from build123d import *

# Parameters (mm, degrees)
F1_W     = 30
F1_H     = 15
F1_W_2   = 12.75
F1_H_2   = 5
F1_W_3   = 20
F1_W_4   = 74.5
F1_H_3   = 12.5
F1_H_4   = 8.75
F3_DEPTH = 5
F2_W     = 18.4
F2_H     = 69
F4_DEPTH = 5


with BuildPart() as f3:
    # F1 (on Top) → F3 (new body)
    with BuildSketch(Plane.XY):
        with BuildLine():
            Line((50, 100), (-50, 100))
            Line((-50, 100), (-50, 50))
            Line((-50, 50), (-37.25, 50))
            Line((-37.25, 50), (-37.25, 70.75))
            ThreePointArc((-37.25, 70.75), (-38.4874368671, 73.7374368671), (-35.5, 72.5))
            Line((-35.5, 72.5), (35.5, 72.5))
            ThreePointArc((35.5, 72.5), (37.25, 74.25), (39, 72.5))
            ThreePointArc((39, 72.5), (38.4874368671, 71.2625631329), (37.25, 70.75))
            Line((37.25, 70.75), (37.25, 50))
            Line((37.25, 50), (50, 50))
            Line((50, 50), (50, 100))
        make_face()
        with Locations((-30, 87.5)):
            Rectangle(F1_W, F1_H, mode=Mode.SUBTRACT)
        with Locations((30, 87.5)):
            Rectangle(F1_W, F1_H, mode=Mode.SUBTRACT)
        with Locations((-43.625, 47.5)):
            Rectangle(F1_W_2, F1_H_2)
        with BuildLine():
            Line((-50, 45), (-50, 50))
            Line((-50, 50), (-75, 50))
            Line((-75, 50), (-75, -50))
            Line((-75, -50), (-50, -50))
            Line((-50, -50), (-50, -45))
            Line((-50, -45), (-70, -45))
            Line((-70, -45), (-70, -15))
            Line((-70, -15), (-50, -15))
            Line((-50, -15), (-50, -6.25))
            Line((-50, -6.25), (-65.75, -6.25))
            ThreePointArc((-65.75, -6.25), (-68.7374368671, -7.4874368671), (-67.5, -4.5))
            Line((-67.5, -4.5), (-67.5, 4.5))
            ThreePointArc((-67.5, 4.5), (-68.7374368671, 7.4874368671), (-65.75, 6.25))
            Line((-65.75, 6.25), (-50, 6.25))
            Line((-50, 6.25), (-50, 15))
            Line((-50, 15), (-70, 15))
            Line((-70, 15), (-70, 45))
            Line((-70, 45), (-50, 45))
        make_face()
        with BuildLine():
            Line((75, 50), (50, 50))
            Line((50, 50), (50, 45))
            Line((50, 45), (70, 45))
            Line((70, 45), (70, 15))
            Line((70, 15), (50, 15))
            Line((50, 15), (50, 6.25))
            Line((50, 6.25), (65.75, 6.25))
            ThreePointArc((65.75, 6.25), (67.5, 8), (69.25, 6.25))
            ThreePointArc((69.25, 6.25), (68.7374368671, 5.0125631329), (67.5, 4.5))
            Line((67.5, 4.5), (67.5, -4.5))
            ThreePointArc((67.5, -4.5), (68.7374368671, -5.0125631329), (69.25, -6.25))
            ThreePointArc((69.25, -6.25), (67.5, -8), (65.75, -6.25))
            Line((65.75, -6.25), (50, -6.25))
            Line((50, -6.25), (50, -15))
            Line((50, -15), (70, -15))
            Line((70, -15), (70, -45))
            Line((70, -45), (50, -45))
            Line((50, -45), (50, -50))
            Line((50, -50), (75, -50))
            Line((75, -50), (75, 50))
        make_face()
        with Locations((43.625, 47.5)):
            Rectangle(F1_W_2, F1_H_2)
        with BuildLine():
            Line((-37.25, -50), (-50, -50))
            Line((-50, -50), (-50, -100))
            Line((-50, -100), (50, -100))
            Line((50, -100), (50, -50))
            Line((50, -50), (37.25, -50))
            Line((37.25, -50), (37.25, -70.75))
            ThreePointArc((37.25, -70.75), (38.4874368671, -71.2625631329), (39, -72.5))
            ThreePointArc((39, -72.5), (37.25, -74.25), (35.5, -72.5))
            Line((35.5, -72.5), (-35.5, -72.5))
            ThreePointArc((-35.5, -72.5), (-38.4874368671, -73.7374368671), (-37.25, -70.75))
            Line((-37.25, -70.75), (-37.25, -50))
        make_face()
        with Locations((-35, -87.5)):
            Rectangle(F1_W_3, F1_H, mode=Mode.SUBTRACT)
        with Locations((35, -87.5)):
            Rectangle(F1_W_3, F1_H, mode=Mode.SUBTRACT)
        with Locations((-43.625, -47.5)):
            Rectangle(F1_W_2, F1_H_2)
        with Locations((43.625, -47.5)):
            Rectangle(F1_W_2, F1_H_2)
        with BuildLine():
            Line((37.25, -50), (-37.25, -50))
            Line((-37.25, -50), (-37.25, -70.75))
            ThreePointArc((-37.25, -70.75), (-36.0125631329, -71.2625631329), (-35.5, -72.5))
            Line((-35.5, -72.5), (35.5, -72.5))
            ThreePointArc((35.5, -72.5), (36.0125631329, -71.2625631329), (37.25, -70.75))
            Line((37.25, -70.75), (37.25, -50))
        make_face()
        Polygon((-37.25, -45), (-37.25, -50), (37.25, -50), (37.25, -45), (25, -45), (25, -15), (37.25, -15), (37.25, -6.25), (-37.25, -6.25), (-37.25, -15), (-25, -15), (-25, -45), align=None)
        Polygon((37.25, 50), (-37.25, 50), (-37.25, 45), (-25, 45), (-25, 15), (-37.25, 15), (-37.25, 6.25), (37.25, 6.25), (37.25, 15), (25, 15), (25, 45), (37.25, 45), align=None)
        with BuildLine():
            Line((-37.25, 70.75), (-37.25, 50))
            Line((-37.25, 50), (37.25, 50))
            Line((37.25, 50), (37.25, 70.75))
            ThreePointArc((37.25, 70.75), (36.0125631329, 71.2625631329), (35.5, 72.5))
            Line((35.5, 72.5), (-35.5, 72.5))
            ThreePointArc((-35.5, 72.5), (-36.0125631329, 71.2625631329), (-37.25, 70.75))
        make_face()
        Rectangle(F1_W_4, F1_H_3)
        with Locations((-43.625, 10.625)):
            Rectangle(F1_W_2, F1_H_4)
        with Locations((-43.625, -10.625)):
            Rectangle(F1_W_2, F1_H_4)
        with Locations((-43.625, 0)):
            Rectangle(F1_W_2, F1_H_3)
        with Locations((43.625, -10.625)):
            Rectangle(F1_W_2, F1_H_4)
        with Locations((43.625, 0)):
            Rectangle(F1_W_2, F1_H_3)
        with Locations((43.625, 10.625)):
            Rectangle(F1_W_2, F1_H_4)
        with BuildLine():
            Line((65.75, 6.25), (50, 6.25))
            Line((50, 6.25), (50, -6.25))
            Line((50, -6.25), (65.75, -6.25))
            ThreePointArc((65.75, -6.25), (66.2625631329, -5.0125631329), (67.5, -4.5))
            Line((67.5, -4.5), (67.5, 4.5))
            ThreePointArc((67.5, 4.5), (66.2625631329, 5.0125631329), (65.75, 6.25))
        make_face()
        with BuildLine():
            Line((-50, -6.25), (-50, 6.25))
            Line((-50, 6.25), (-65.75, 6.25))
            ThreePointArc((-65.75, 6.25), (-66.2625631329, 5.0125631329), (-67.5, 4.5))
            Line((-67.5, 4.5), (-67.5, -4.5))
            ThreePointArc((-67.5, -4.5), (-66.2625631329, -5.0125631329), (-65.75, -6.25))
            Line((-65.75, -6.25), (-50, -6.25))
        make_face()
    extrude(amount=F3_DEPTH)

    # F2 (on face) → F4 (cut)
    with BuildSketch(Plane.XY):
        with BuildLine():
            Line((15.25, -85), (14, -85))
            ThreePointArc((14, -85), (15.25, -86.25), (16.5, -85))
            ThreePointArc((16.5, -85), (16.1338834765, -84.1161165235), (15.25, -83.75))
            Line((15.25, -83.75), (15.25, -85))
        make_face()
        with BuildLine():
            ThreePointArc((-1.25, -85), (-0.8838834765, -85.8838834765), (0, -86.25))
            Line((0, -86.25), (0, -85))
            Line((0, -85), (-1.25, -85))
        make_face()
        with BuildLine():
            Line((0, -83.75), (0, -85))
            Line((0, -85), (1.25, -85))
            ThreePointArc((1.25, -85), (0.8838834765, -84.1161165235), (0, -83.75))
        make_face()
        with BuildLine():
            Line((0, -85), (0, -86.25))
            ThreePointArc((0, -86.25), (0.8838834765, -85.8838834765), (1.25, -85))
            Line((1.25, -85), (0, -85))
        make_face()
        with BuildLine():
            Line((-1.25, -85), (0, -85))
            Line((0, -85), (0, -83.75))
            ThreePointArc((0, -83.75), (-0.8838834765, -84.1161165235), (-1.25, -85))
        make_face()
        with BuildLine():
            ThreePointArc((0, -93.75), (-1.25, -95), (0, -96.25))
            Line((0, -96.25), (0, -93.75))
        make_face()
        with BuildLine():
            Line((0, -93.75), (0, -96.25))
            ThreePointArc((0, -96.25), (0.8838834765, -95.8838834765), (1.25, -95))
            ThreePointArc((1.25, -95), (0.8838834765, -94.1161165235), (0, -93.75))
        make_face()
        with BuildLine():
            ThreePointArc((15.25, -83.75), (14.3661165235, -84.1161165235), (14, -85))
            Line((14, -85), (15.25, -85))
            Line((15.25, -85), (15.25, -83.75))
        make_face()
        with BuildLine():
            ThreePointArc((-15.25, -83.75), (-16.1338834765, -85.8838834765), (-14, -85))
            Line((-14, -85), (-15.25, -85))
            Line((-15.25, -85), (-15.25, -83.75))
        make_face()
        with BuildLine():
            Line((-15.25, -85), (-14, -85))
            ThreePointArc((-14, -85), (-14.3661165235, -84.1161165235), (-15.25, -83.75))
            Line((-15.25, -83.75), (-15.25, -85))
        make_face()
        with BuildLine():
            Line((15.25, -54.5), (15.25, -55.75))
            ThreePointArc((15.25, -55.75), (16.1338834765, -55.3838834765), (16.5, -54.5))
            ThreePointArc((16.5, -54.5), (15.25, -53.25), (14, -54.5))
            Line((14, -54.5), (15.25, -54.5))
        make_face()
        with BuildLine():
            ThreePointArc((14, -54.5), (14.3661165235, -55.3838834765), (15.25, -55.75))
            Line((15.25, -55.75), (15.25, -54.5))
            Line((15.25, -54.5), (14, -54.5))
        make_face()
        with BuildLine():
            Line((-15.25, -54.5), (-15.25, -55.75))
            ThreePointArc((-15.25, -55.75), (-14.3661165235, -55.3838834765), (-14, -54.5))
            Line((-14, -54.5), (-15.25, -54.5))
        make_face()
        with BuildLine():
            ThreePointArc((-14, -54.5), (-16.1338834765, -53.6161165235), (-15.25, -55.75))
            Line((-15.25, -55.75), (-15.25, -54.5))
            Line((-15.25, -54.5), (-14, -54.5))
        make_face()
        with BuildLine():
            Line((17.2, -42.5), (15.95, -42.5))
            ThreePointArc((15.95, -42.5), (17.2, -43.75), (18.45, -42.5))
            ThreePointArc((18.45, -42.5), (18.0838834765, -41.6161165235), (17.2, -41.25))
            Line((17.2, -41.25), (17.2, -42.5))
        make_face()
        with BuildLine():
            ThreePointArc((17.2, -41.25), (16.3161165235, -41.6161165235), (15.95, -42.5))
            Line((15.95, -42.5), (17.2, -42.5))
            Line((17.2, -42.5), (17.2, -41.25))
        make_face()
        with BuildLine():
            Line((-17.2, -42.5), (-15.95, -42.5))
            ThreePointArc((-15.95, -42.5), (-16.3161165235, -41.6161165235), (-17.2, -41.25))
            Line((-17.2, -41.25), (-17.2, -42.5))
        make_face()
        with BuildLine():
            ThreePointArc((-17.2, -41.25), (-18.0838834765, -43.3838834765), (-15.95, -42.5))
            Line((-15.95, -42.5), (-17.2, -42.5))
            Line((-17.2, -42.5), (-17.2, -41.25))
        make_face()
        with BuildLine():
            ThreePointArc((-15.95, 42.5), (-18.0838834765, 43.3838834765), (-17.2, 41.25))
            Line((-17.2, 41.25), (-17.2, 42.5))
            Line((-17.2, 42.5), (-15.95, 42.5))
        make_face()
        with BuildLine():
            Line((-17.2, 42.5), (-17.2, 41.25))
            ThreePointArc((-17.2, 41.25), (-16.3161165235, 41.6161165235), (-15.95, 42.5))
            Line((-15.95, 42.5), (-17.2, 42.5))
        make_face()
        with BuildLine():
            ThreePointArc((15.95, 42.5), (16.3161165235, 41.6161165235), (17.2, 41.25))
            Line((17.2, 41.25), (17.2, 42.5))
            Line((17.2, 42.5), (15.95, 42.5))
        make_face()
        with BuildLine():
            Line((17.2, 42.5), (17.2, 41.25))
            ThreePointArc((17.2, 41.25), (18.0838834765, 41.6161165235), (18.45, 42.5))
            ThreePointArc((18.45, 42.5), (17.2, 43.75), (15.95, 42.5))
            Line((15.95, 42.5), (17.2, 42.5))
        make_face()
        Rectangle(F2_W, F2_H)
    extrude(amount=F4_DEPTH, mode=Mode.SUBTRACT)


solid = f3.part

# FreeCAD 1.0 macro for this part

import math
import FreeCAD as App
import Part
import Sketcher


def add_polygon(sketch, points):
    """Adds a closed chain of lines whose ends are joined by coincident constraints."""
    first, n = sketch.GeometryCount, len(points)
    for a, b in zip(points, points[1:] + points[:1]):
        sketch.addGeometry(Part.LineSegment(App.Vector(*a, 0), App.Vector(*b, 0)), False)
    for i in range(n):
        sketch.addConstraint(Sketcher.Constraint("Coincident", first + i, 2, first + (i + 1) % n, 1))

doc = App.newDocument("Part")
params = doc.addObject("Spreadsheet::Sheet", "Params")
for row, (alias, value) in enumerate([
    ("sketch1_width", "25 mm"),
    ("sketch1_width2", "100 mm"),
    ("sketch1_width3", "20 mm"),
    ("sketch1_width4", "45 mm"),
    ("sketch1_width5", "30 mm"),
    ("pad1_length", "5 mm"),
    ("sketch2_height", "69 mm"),
    ("sketch2_radius", "1.25 mm"),
    ("sketch2_width", "18.4 mm"),
    ("pocket1_length", "5 mm"),
], start=1):
    params.set(f"A{row}", alias)
    params.set(f"B{row}", "=" + value)
    params.setAlias(f"B{row}", alias)

body = doc.addObject("PartDesign::Body", "Body")

sketch1 = doc.addObject("Sketcher::SketchObject", "Sketch")
body.addObject(sketch1)
sketch1.AttachmentSupport = (doc.XY_Plane, [""])
sketch1.MapMode = "FlatFace"
add_polygon(sketch1, [(50, -100), (50, -50), (75, -50), (75, 50), (50, 50), (50, 100), (-50, 100), (-50, 50), (-75, 50), (-75, -50), (-50, -50), (-50, -100)])
sketch1.addGeometry(Part.ArcOfCircle(Part.Circle(App.Vector(-37.2, -72.5, 0), App.Vector(0, 0, 1), 1.8), math.radians(90), math.radians(360)), False)
sketch1.addGeometry(Part.ArcOfCircle(Part.Circle(App.Vector(-37.2, -72.5, 0), App.Vector(0, 0, 1), 1.8), math.radians(0), math.radians(90)), False)
add_polygon(sketch1, [(-25, -95), (-45, -95), (-45, -80), (-25, -80)])
add_polygon(sketch1, [(-25, -15), (-25, -45), (-70, -45), (-70, -15)])
add_polygon(sketch1, [(25, -95), (25, -80), (45, -80), (45, -95)])
sketch1.addGeometry(Part.ArcOfCircle(Part.Circle(App.Vector(37.2, -72.5, 0), App.Vector(0, 0, 1), 1.8), math.radians(0), math.radians(90)), False)
sketch1.addGeometry(Part.ArcOfCircle(Part.Circle(App.Vector(37.2, -72.5, 0), App.Vector(0, 0, 1), 1.8), math.radians(180), math.radians(360)), False)
sketch1.addGeometry(Part.ArcOfCircle(Part.Circle(App.Vector(37.2, -72.5, 0), App.Vector(0, 0, 1), 1.8), math.radians(90), math.radians(180)), False)
add_polygon(sketch1, [(70, -45), (25, -45), (25, -15), (70, -15)])
sketch1.addGeometry(Part.ArcOfCircle(Part.Circle(App.Vector(-67.5, -6.2, 0), App.Vector(0, 0, 1), 1.8), math.radians(90), math.radians(360)), False)
sketch1.addGeometry(Part.ArcOfCircle(Part.Circle(App.Vector(-67.5, -6.2, 0), App.Vector(0, 0, 1), 1.8), math.radians(0), math.radians(90)), False)
sketch1.addGeometry(Part.ArcOfCircle(Part.Circle(App.Vector(-67.5, 6.2, 0), App.Vector(0, 0, 1), 1.8), math.radians(0), math.radians(270)), False)
sketch1.addGeometry(Part.ArcOfCircle(Part.Circle(App.Vector(-67.5, 6.2, 0), App.Vector(0, 0, 1), 1.8), math.radians(-90), math.radians(0)), False)
add_polygon(sketch1, [(-70, 15), (-70, 45), (-25, 45), (-25, 15)])
sketch1.addGeometry(Part.ArcOfCircle(Part.Circle(App.Vector(-37.2, 72.5, 0), App.Vector(0, 0, 1), 1.8), math.radians(0), math.radians(270)), False)
sketch1.addGeometry(Part.ArcOfCircle(Part.Circle(App.Vector(-37.2, 72.5, 0), App.Vector(0, 0, 1), 1.8), math.radians(-90), math.radians(0)), False)
add_polygon(sketch1, [(-15, 80), (-45, 80), (-45, 95), (-15, 95)])
sketch1.addGeometry(Part.ArcOfCircle(Part.Circle(App.Vector(67.5, 6.2, 0), App.Vector(0, 0, 1), 1.8), math.radians(0), math.radians(180)), False)
sketch1.addGeometry(Part.ArcOfCircle(Part.Circle(App.Vector(67.5, 6.2, 0), App.Vector(0, 0, 1), 1.8), math.radians(-90), math.radians(0)), False)
sketch1.addGeometry(Part.ArcOfCircle(Part.Circle(App.Vector(67.5, 6.2, 0), App.Vector(0, 0, 1), 1.8), math.radians(180), math.radians(270)), False)
sketch1.addGeometry(Part.ArcOfCircle(Part.Circle(App.Vector(67.5, -6.2, 0), App.Vector(0, 0, 1), 1.8), math.radians(0), math.radians(90)), False)
sketch1.addGeometry(Part.ArcOfCircle(Part.Circle(App.Vector(67.5, -6.2, 0), App.Vector(0, 0, 1), 1.8), math.radians(180), math.radians(360)), False)
sketch1.addGeometry(Part.ArcOfCircle(Part.Circle(App.Vector(67.5, -6.2, 0), App.Vector(0, 0, 1), 1.8), math.radians(90), math.radians(180)), False)
add_polygon(sketch1, [(70, 15), (25, 15), (25, 45), (70, 45)])
add_polygon(sketch1, [(45, 80), (15, 80), (15, 95), (45, 95)])
sketch1.addGeometry(Part.ArcOfCircle(Part.Circle(App.Vector(37.2, 72.5, 0), App.Vector(0, 0, 1), 1.8), math.radians(0), math.radians(180)), False)
sketch1.addGeometry(Part.ArcOfCircle(Part.Circle(App.Vector(37.2, 72.5, 0), App.Vector(0, 0, 1), 1.8), math.radians(-90), math.radians(0)), False)
sketch1.addGeometry(Part.ArcOfCircle(Part.Circle(App.Vector(37.2, 72.5, 0), App.Vector(0, 0, 1), 1.8), math.radians(180), math.radians(270)), False)
sketch1.addConstraint([
    Sketcher.Constraint("Tangent", 12, 1, 13, 2),
    Sketcher.Constraint("Coincident", 13, 1, 12, 2),
    Sketcher.Constraint("Tangent", 26, 1, 27, 2),
    Sketcher.Constraint("Tangent", 27, 1, 28, 2),
    Sketcher.Constraint("Tangent", 28, 1, 26, 2),
    Sketcher.Constraint("Tangent", 33, 1, 34, 2),
    Sketcher.Constraint("Coincident", 34, 1, 33, 2),
    Sketcher.Constraint("Tangent", 35, 1, 36, 2),
    Sketcher.Constraint("Coincident", 36, 1, 35, 2),
    Sketcher.Constraint("Tangent", 41, 1, 42, 2),
    Sketcher.Constraint("Coincident", 42, 1, 41, 2),
    Sketcher.Constraint("Tangent", 47, 1, 48, 2),
    Sketcher.Constraint("Tangent", 48, 1, 49, 2),
    Sketcher.Constraint("Tangent", 49, 1, 47, 2),
    Sketcher.Constraint("Tangent", 50, 1, 51, 2),
    Sketcher.Constraint("Tangent", 51, 1, 52, 2),
    Sketcher.Constraint("Tangent", 52, 1, 50, 2),
    Sketcher.Constraint("Tangent", 61, 1, 62, 2),
    Sketcher.Constraint("Tangent", 62, 1, 63, 2),
    Sketcher.Constraint("Tangent", 63, 1, 61, 2),
    Sketcher.Constraint("Vertical", 0),
    Sketcher.Constraint("Horizontal", 1),
    Sketcher.Constraint("Vertical", 2),
    Sketcher.Constraint("Horizontal", 3),
    Sketcher.Constraint("Vertical", 4),
    Sketcher.Constraint("Horizontal", 5),
    Sketcher.Constraint("Vertical", 6),
    Sketcher.Constraint("Horizontal", 7),
    Sketcher.Constraint("Vertical", 8),
    Sketcher.Constraint("Horizontal", 9),
    Sketcher.Constraint("Vertical", 10),
    Sketcher.Constraint("Horizontal", 11),
    Sketcher.Constraint("Horizontal", 14),
    Sketcher.Constraint("Vertical", 15),
    Sketcher.Constraint("Horizontal", 16),
    Sketcher.Constraint("Vertical", 17),
    Sketcher.Constraint("Vertical", 18),
    Sketcher.Constraint("Horizontal", 19),
    Sketcher.Constraint("Vertical", 20),
    Sketcher.Constraint("Horizontal", 21),
    Sketcher.Constraint("Vertical", 22),
    Sketcher.Constraint("Horizontal", 23),
    Sketcher.Constraint("Vertical", 24),
    Sketcher.Constraint("Horizontal", 25),
    Sketcher.Constraint("Horizontal", 29),
    Sketcher.Constraint("Vertical", 30),
    Sketcher.Constraint("Horizontal", 31),
    Sketcher.Constraint("Vertical", 32),
    Sketcher.Constraint("Vertical", 37),
    Sketcher.Constraint("Horizontal", 38),
    Sketcher.Constraint("Vertical", 39),
    Sketcher.Constraint("Horizontal", 40),
    Sketcher.Constraint("Horizontal", 43),
    Sketcher.Constraint("Vertical", 44),
    Sketcher.Constraint("Horizontal", 45),
    Sketcher.Constraint("Vertical", 46),
    Sketcher.Constraint("Horizontal", 53),
    Sketcher.Constraint("Vertical", 54),
    Sketcher.Constraint("Horizontal", 55),
    Sketcher.Constraint("Vertical", 56),
    Sketcher.Constraint("Horizontal", 57),
    Sketcher.Constraint("Vertical", 58),
    Sketcher.Constraint("Horizontal", 59),
    Sketcher.Constraint("Vertical", 60),
    Sketcher.Constraint("Equal", 13, 26),
    Sketcher.Constraint("Equal", 28, 33),
    Sketcher.Constraint("Equal", 34, 35),
    Sketcher.Constraint("Equal", 36, 41),
    Sketcher.Constraint("Equal", 42, 47),
    Sketcher.Constraint("Equal", 49, 50),
    Sketcher.Constraint("Equal", 52, 61),
    Sketcher.Constraint("Symmetric", 26, 3, 41, 3, -1, 1),
    Sketcher.Constraint("Symmetric", 33, 3, 47, 3, -1, 1),
    Sketcher.Constraint("Symmetric", 35, 3, 50, 3, -1, 1),
    Sketcher.Constraint("Symmetric", 12, 3, 61, 3, -1, 1),
    Sketcher.Constraint("Symmetric", 0, 2, 6, 2, -1, 1),
    Sketcher.Constraint("Symmetric", 2, 2, 8, 2, -1, 1),
    Sketcher.Constraint("Symmetric", 4, 2, 10, 2, -1, 1),
    Sketcher.Constraint("Symmetric", 32, 2, 37, 2, -1, 1),
    Sketcher.Constraint("Symmetric", 30, 2, 39, 2, -1, 1),
    Sketcher.Constraint("Symmetric", 23, 2, 43, 2, -1, 1),
    Sketcher.Constraint("Symmetric", 21, 2, 53, 2, -1, 1),
    Sketcher.Constraint("Symmetric", 19, 2, 55, 2, -1, 1),
    Sketcher.Constraint("Symmetric", 14, 2, 59, 2, -1, 1),
    Sketcher.Constraint("Symmetric", 12, 3, 26, 3, -2),
    Sketcher.Constraint("Symmetric", 35, 3, 47, 3, -2),
    Sketcher.Constraint("Symmetric", 3, 2, 6, 2, -2),
    Sketcher.Constraint("Symmetric", 16, 2, 22, 2, -2),
    Sketcher.Constraint("Symmetric", 14, 2, 24, 2, -2),
    Sketcher.Constraint("Symmetric", 18, 2, 29, 2, -2),
    Sketcher.Constraint("Symmetric", 20, 2, 31, 2, -2),
    Sketcher.Constraint("Symmetric", 46, 2, 57, 2, -2),
    Sketcher.Constraint("Horizontal", 28, 3, 13, 1),
    Sketcher.Constraint("Horizontal", 13, 1, 26, 1),
    Sketcher.Constraint("Horizontal", 26, 1, 27, 1),
    Sketcher.Constraint("Horizontal", 52, 3, 34, 1),
    Sketcher.Constraint("Horizontal", 49, 3, 35, 1),
    Sketcher.Constraint("Horizontal", 63, 3, 41, 1),
    Sketcher.Constraint("Horizontal", 35, 1, 47, 1),
    Sketcher.Constraint("Horizontal", 47, 1, 49, 1),
    Sketcher.Constraint("Horizontal", 34, 1, 50, 1),
    Sketcher.Constraint("Horizontal", 50, 1, 51, 1),
    Sketcher.Constraint("Horizontal", 45, 2, 58, 2),
    Sketcher.Constraint("Horizontal", 41, 1, 61, 1),
    Sketcher.Constraint("Horizontal", 61, 1, 63, 1),
    Sketcher.Constraint("Vertical", 42, 3, 12, 1),
    Sketcher.Constraint("Vertical", 17, 2, 18, 2),
    Sketcher.Constraint("Vertical", 63, 3, 28, 1),
    Sketcher.Constraint("Vertical", 36, 3, 33, 1),
    Sketcher.Constraint("Vertical", 33, 1, 36, 1),
    Sketcher.Constraint("Vertical", 12, 1, 42, 1),
    Sketcher.Constraint("Vertical", 52, 3, 48, 1),
    Sketcher.Constraint("Vertical", 48, 1, 52, 1),
    Sketcher.Constraint("Vertical", 28, 1, 62, 1),
    Sketcher.Constraint("Equal", 11, 2),
    Sketcher.Constraint("Equal", 59, 18),
    Sketcher.Constraint("DistanceX", 1, 1, 1, 2, 25.0),
    Sketcher.Constraint("DistanceX", 5, 2, 5, 1, 100.0),
    Sketcher.Constraint("DistanceX", 14, 2, 14, 1, 20.0),
    Sketcher.Constraint("DistanceX", 19, 2, 19, 1, 45.0),
    Sketcher.Constraint("DistanceX", 43, 2, 43, 1, 30.0),
    Sketcher.Constraint("DistanceY", 0, 1, 0, 2, 50.0),
    Sketcher.Constraint("DistanceY", 15, 1, 15, 2, 15.0),
    Sketcher.Constraint("Radius", 12, 1.75),
    Sketcher.Constraint("DistanceX", 14, 2, -1, 1, 45.0),
    Sketcher.Constraint("DistanceY", 14, 2, -1, 1, 95.0),
    Sketcher.Constraint("DistanceY", 18, 2, -1, 1, 45.0),
    Sketcher.Constraint("DistanceX", -1, 1, 26, 1, 39.0),
    Sketcher.Constraint("DistanceY", 12, 3, -1, 1, 72.5),
    Sketcher.Constraint("DistanceX", 33, 3, -1, 1, 67.5),
    Sketcher.Constraint("DistanceY", 33, 1, -1, 1, 4.5),
])
sketch1.setExpression("Constraints[160]", "Params.sketch1_width")
sketch1.setExpression("Constraints[161]", "Params.sketch1_width2")
sketch1.setExpression("Constraints[162]", "Params.sketch1_width3")
sketch1.setExpression("Constraints[163]", "Params.sketch1_width4")
sketch1.setExpression("Constraints[164]", "Params.sketch1_width5")
pad1 = doc.addObject("PartDesign::Pad", "Pad")
body.addObject(pad1)
pad1.Profile = sketch1
pad1.setExpression("Length", "Params.pad1_length")

sketch2 = doc.addObject("Sketcher::SketchObject", "Sketch001")
body.addObject(sketch2)
sketch2.AttachmentSupport = (doc.XY_Plane, [""])
sketch2.MapMode = "FlatFace"
sketch2.addGeometry(Part.ArcOfCircle(Part.Circle(App.Vector(15.2, -85, 0), App.Vector(0, 0, 1), 1.2), math.radians(180), math.radians(360)), False)
sketch2.addGeometry(Part.ArcOfCircle(Part.Circle(App.Vector(15.2, -85, 0), App.Vector(0, 0, 1), 1.2), math.radians(0), math.radians(90)), False)
sketch2.addGeometry(Part.ArcOfCircle(Part.Circle(App.Vector(15.2, -85, 0), App.Vector(0, 0, 1), 1.2), math.radians(90), math.radians(180)), False)
sketch2.addGeometry(Part.ArcOfCircle(Part.Circle(App.Vector(0, -85, 0), App.Vector(0, 0, 1), 1.2), math.radians(180), math.radians(270)), False)
sketch2.addGeometry(Part.ArcOfCircle(Part.Circle(App.Vector(0, -85, 0), App.Vector(0, 0, 1), 1.2), math.radians(-90), math.radians(0)), False)
sketch2.addGeometry(Part.ArcOfCircle(Part.Circle(App.Vector(0, -85, 0), App.Vector(0, 0, 1), 1.2), math.radians(0), math.radians(90)), False)
sketch2.addGeometry(Part.ArcOfCircle(Part.Circle(App.Vector(0, -85, 0), App.Vector(0, 0, 1), 1.2), math.radians(90), math.radians(180)), False)
sketch2.addGeometry(Part.ArcOfCircle(Part.Circle(App.Vector(0, -95, 0), App.Vector(0, 0, 1), 1.2), math.radians(90), math.radians(270)), False)
sketch2.addGeometry(Part.ArcOfCircle(Part.Circle(App.Vector(0, -95, 0), App.Vector(0, 0, 1), 1.2), math.radians(-90), math.radians(0)), False)
sketch2.addGeometry(Part.ArcOfCircle(Part.Circle(App.Vector(0, -95, 0), App.Vector(0, 0, 1), 1.2), math.radians(0), math.radians(90)), False)
sketch2.addGeometry(Part.ArcOfCircle(Part.Circle(App.Vector(-15.2, -85, 0), App.Vector(0, 0, 1), 1.2), math.radians(90), math.radians(360)), False)
sketch2.addGeometry(Part.ArcOfCircle(Part.Circle(App.Vector(-15.2, -85, 0), App.Vector(0, 0, 1), 1.2), math.radians(0), math.radians(90)), False)
sketch2.addGeometry(Part.ArcOfCircle(Part.Circle(App.Vector(15.2, -54.5, 0), App.Vector(0, 0, 1), 1.2), math.radians(-90), math.radians(0)), False)
sketch2.addGeometry(Part.ArcOfCircle(Part.Circle(App.Vector(15.2, -54.5, 0), App.Vector(0, 0, 1), 1.2), math.radians(0), math.radians(180)), False)
sketch2.addGeometry(Part.ArcOfCircle(Part.Circle(App.Vector(15.2, -54.5, 0), App.Vector(0, 0, 1), 1.2), math.radians(180), math.radians(270)), False)
sketch2.addGeometry(Part.ArcOfCircle(Part.Circle(App.Vector(-15.2, -54.5, 0), App.Vector(0, 0, 1), 1.2), math.radians(-90), math.radians(0)), False)
sketch2.addGeometry(Part.ArcOfCircle(Part.Circle(App.Vector(-15.2, -54.5, 0), App.Vector(0, 0, 1), 1.2), math.radians(0), math.radians(270)), False)
sketch2.addGeometry(Part.ArcOfCircle(Part.Circle(App.Vector(17.2, -42.5, 0), App.Vector(0, 0, 1), 1.2), math.radians(180), math.radians(360)), False)
sketch2.addGeometry(Part.ArcOfCircle(Part.Circle(App.Vector(17.2, -42.5, 0), App.Vector(0, 0, 1), 1.2), math.radians(0), math.radians(90)), False)
sketch2.addGeometry(Part.ArcOfCircle(Part.Circle(App.Vector(17.2, -42.5, 0), App.Vector(0, 0, 1), 1.2), math.radians(90), math.radians(180)), False)
sketch2.addGeometry(Part.ArcOfCircle(Part.Circle(App.Vector(-17.2, -42.5, 0), App.Vector(0, 0, 1), 1.2), math.radians(0), math.radians(90)), False)
sketch2.addGeometry(Part.ArcOfCircle(Part.Circle(App.Vector(-17.2, -42.5, 0), App.Vector(0, 0, 1), 1.2), math.radians(90), math.radians(360)), False)
sketch2.addGeometry(Part.ArcOfCircle(Part.Circle(App.Vector(-17.2, 42.5, 0), App.Vector(0, 0, 1), 1.2), math.radians(0), math.radians(270)), False)
sketch2.addGeometry(Part.ArcOfCircle(Part.Circle(App.Vector(-17.2, 42.5, 0), App.Vector(0, 0, 1), 1.2), math.radians(-90), math.radians(0)), False)
sketch2.addGeometry(Part.ArcOfCircle(Part.Circle(App.Vector(17.2, 42.5, 0), App.Vector(0, 0, 1), 1.2), math.radians(180), math.radians(270)), False)
sketch2.addGeometry(Part.ArcOfCircle(Part.Circle(App.Vector(17.2, 42.5, 0), App.Vector(0, 0, 1), 1.2), math.radians(-90), math.radians(0)), False)
sketch2.addGeometry(Part.ArcOfCircle(Part.Circle(App.Vector(17.2, 42.5, 0), App.Vector(0, 0, 1), 1.2), math.radians(0), math.radians(180)), False)
add_polygon(sketch2, [(-9.2, 34.5), (-9.2, -34.5), (9.2, -34.5), (9.2, 34.5)])
sketch2.addConstraint([
    Sketcher.Constraint("Tangent", 0, 2, 1, 1),
    Sketcher.Constraint("Tangent", 1, 2, 2, 1),
    Sketcher.Constraint("Tangent", 2, 2, 0, 1),
    Sketcher.Constraint("Tangent", 3, 2, 4, 1),
    Sketcher.Constraint("Tangent", 4, 2, 5, 1),
    Sketcher.Constraint("Tangent", 5, 2, 6, 1),
    Sketcher.Constraint("Tangent", 6, 2, 3, 1),
    Sketcher.Constraint("Tangent", 7, 2, 8, 1),
    Sketcher.Constraint("Tangent", 8, 2, 9, 1),
    Sketcher.Constraint("Tangent", 9, 2, 7, 1),
    Sketcher.Constraint("Tangent", 10, 1, 11, 2),
    Sketcher.Constraint("Coincident", 11, 1, 10, 2),
    Sketcher.Constraint("Tangent", 12, 2, 13, 1),
    Sketcher.Constraint("Tangent", 13, 2, 14, 1),
    Sketcher.Constraint("Tangent", 14, 2, 12, 1),
    Sketcher.Constraint("Tangent", 15, 1, 16, 2),
    Sketcher.Constraint("Coincident", 16, 1, 15, 2),
    Sketcher.Constraint("Tangent", 17, 2, 18, 1),
    Sketcher.Constraint("Tangent", 18, 2, 19, 1),
    Sketcher.Constraint("Tangent", 19, 2, 17, 1),
    Sketcher.Constraint("Tangent", 20, 1, 21, 2),
    Sketcher.Constraint("Coincident", 21, 1, 20, 2),
    Sketcher.Constraint("Tangent", 22, 1, 23, 2),
    Sketcher.Constraint("Coincident", 23, 1, 22, 2),
    Sketcher.Constraint("Tangent", 24, 2, 25, 1),
    Sketcher.Constraint("Tangent", 25, 2, 26, 1),
    Sketcher.Constraint("Tangent", 26, 2, 24, 1),
    Sketcher.Constraint("Vertical", 27),
    Sketcher.Constraint("Horizontal", 28),
    Sketcher.Constraint("Vertical", 29),
    Sketcher.Constraint("Horizontal", 30),
    Sketcher.Constraint("Equal", 2, 3),
    Sketcher.Constraint("Equal", 3, 4),
    Sketcher.Constraint("Equal", 6, 7),
    Sketcher.Constraint("Equal", 9, 10),
    Sketcher.Constraint("Equal", 11, 12),
    Sketcher.Constraint("Equal", 14, 15),
    Sketcher.Constraint("Equal", 16, 17),
    Sketcher.Constraint("Equal", 19, 20),
    Sketcher.Constraint("Equal", 21, 22),
    Sketcher.Constraint("Equal", 23, 24),
    Sketcher.Constraint("Symmetric", 17, 3, 22, 3, -1, 1),
    Sketcher.Constraint("Symmetric", 20, 3, 24, 3, -1, 1),
    Sketcher.Constraint("Symmetric", 27, 2, 29, 2, -1, 1),
    Sketcher.Constraint("Symmetric", 0, 3, 10, 3, -2),
    Sketcher.Constraint("Symmetric", 12, 3, 15, 3, -2),
    Sketcher.Constraint("Symmetric", 17, 3, 20, 3, -2),
    Sketcher.Constraint("Symmetric", 4, 2, 6, 2, -2),
    Sketcher.Constraint("PointOnObject", 7, 3, -2),
    Sketcher.Constraint("PointOnObject", 3, 2, -2),
    Sketcher.Constraint("PointOnObject", 5, 2, -2),
    Sketcher.Constraint("PointOnObject", 7, 2, -2),
    Sketcher.Constraint("PointOnObject", 9, 2, -2),
    Sketcher.Constraint("Horizontal", 2, 3, 3, 3),
    Sketcher.Constraint("Horizontal", 11, 3, 0, 2),
    Sketcher.Constraint("Horizontal", 0, 2, 2, 2),
    Sketcher.Constraint("Horizontal", 2, 2, 4, 2),
    Sketcher.Constraint("Horizontal", 9, 3, 8, 2),
    Sketcher.Constraint("Horizontal", 6, 2, 11, 1),
    Sketcher.Constraint("Horizontal", 16, 3, 12, 2),
    Sketcher.Constraint("Horizontal", 12, 2, 13, 2),
    Sketcher.Constraint("Horizontal", 13, 2, 16, 1),
    Sketcher.Constraint("Horizontal", 21, 3, 17, 2),
    Sketcher.Constraint("Horizontal", 17, 2, 19, 2),
    Sketcher.Constraint("Horizontal", 19, 2, 20, 1),
    Sketcher.Constraint("Horizontal", 26, 3, 22, 1),
    Sketcher.Constraint("Horizontal", 22, 1, 25, 2),
    Sketcher.Constraint("Horizontal", 25, 2, 26, 2),
    Sketcher.Constraint("Vertical", 2, 3, 12, 3),
    Sketcher.Constraint("Vertical", 14, 3, 1, 2),
    Sketcher.Constraint("Vertical", 16, 3, 10, 1),
    Sketcher.Constraint("Vertical", 1, 2, 14, 2),
    Sketcher.Constraint("Vertical", 10, 1, 15, 1),
    Sketcher.Constraint("Vertical", 26, 3, 18, 2),
    Sketcher.Constraint("Vertical", 23, 3, 21, 1),
    Sketcher.Constraint("Vertical", 21, 1, 23, 1),
    Sketcher.Constraint("Vertical", 18, 2, 24, 2),
    Sketcher.Constraint("DistanceY", 27, 2, 27, 1, 69.0),
    Sketcher.Constraint("Radius", 0, 1.25),
    Sketcher.Constraint("DistanceX", 28, 1, 28, 2, 18.4),
    Sketcher.Constraint("DistanceY", 0, 3, -1, 1, 85.0),
    Sketcher.Constraint("DistanceY", 7, 3, -1, 1, 95.0),
    Sketcher.Constraint("DistanceX", -1, 1, 2, 2, 14.0),
    Sketcher.Constraint("DistanceY", 12, 3, 17, 3, 12.0),
    Sketcher.Constraint("DistanceY", 20, 3, 22, 3, 85.0),
    Sketcher.Constraint("DistanceX", 21, 1, 27, 2, 8.0),
])
sketch2.setExpression("Constraints[81]", "Params.sketch2_height")
sketch2.setExpression("Constraints[82]", "Params.sketch2_radius")
sketch2.setExpression("Constraints[83]", "Params.sketch2_width")
pocket1 = doc.addObject("PartDesign::Pocket", "Pocket")
body.addObject(pocket1)
pocket1.Profile = sketch2
pocket1.setExpression("Length", "Params.pocket1_length")
pocket1.Reversed = True

doc.recompute()
